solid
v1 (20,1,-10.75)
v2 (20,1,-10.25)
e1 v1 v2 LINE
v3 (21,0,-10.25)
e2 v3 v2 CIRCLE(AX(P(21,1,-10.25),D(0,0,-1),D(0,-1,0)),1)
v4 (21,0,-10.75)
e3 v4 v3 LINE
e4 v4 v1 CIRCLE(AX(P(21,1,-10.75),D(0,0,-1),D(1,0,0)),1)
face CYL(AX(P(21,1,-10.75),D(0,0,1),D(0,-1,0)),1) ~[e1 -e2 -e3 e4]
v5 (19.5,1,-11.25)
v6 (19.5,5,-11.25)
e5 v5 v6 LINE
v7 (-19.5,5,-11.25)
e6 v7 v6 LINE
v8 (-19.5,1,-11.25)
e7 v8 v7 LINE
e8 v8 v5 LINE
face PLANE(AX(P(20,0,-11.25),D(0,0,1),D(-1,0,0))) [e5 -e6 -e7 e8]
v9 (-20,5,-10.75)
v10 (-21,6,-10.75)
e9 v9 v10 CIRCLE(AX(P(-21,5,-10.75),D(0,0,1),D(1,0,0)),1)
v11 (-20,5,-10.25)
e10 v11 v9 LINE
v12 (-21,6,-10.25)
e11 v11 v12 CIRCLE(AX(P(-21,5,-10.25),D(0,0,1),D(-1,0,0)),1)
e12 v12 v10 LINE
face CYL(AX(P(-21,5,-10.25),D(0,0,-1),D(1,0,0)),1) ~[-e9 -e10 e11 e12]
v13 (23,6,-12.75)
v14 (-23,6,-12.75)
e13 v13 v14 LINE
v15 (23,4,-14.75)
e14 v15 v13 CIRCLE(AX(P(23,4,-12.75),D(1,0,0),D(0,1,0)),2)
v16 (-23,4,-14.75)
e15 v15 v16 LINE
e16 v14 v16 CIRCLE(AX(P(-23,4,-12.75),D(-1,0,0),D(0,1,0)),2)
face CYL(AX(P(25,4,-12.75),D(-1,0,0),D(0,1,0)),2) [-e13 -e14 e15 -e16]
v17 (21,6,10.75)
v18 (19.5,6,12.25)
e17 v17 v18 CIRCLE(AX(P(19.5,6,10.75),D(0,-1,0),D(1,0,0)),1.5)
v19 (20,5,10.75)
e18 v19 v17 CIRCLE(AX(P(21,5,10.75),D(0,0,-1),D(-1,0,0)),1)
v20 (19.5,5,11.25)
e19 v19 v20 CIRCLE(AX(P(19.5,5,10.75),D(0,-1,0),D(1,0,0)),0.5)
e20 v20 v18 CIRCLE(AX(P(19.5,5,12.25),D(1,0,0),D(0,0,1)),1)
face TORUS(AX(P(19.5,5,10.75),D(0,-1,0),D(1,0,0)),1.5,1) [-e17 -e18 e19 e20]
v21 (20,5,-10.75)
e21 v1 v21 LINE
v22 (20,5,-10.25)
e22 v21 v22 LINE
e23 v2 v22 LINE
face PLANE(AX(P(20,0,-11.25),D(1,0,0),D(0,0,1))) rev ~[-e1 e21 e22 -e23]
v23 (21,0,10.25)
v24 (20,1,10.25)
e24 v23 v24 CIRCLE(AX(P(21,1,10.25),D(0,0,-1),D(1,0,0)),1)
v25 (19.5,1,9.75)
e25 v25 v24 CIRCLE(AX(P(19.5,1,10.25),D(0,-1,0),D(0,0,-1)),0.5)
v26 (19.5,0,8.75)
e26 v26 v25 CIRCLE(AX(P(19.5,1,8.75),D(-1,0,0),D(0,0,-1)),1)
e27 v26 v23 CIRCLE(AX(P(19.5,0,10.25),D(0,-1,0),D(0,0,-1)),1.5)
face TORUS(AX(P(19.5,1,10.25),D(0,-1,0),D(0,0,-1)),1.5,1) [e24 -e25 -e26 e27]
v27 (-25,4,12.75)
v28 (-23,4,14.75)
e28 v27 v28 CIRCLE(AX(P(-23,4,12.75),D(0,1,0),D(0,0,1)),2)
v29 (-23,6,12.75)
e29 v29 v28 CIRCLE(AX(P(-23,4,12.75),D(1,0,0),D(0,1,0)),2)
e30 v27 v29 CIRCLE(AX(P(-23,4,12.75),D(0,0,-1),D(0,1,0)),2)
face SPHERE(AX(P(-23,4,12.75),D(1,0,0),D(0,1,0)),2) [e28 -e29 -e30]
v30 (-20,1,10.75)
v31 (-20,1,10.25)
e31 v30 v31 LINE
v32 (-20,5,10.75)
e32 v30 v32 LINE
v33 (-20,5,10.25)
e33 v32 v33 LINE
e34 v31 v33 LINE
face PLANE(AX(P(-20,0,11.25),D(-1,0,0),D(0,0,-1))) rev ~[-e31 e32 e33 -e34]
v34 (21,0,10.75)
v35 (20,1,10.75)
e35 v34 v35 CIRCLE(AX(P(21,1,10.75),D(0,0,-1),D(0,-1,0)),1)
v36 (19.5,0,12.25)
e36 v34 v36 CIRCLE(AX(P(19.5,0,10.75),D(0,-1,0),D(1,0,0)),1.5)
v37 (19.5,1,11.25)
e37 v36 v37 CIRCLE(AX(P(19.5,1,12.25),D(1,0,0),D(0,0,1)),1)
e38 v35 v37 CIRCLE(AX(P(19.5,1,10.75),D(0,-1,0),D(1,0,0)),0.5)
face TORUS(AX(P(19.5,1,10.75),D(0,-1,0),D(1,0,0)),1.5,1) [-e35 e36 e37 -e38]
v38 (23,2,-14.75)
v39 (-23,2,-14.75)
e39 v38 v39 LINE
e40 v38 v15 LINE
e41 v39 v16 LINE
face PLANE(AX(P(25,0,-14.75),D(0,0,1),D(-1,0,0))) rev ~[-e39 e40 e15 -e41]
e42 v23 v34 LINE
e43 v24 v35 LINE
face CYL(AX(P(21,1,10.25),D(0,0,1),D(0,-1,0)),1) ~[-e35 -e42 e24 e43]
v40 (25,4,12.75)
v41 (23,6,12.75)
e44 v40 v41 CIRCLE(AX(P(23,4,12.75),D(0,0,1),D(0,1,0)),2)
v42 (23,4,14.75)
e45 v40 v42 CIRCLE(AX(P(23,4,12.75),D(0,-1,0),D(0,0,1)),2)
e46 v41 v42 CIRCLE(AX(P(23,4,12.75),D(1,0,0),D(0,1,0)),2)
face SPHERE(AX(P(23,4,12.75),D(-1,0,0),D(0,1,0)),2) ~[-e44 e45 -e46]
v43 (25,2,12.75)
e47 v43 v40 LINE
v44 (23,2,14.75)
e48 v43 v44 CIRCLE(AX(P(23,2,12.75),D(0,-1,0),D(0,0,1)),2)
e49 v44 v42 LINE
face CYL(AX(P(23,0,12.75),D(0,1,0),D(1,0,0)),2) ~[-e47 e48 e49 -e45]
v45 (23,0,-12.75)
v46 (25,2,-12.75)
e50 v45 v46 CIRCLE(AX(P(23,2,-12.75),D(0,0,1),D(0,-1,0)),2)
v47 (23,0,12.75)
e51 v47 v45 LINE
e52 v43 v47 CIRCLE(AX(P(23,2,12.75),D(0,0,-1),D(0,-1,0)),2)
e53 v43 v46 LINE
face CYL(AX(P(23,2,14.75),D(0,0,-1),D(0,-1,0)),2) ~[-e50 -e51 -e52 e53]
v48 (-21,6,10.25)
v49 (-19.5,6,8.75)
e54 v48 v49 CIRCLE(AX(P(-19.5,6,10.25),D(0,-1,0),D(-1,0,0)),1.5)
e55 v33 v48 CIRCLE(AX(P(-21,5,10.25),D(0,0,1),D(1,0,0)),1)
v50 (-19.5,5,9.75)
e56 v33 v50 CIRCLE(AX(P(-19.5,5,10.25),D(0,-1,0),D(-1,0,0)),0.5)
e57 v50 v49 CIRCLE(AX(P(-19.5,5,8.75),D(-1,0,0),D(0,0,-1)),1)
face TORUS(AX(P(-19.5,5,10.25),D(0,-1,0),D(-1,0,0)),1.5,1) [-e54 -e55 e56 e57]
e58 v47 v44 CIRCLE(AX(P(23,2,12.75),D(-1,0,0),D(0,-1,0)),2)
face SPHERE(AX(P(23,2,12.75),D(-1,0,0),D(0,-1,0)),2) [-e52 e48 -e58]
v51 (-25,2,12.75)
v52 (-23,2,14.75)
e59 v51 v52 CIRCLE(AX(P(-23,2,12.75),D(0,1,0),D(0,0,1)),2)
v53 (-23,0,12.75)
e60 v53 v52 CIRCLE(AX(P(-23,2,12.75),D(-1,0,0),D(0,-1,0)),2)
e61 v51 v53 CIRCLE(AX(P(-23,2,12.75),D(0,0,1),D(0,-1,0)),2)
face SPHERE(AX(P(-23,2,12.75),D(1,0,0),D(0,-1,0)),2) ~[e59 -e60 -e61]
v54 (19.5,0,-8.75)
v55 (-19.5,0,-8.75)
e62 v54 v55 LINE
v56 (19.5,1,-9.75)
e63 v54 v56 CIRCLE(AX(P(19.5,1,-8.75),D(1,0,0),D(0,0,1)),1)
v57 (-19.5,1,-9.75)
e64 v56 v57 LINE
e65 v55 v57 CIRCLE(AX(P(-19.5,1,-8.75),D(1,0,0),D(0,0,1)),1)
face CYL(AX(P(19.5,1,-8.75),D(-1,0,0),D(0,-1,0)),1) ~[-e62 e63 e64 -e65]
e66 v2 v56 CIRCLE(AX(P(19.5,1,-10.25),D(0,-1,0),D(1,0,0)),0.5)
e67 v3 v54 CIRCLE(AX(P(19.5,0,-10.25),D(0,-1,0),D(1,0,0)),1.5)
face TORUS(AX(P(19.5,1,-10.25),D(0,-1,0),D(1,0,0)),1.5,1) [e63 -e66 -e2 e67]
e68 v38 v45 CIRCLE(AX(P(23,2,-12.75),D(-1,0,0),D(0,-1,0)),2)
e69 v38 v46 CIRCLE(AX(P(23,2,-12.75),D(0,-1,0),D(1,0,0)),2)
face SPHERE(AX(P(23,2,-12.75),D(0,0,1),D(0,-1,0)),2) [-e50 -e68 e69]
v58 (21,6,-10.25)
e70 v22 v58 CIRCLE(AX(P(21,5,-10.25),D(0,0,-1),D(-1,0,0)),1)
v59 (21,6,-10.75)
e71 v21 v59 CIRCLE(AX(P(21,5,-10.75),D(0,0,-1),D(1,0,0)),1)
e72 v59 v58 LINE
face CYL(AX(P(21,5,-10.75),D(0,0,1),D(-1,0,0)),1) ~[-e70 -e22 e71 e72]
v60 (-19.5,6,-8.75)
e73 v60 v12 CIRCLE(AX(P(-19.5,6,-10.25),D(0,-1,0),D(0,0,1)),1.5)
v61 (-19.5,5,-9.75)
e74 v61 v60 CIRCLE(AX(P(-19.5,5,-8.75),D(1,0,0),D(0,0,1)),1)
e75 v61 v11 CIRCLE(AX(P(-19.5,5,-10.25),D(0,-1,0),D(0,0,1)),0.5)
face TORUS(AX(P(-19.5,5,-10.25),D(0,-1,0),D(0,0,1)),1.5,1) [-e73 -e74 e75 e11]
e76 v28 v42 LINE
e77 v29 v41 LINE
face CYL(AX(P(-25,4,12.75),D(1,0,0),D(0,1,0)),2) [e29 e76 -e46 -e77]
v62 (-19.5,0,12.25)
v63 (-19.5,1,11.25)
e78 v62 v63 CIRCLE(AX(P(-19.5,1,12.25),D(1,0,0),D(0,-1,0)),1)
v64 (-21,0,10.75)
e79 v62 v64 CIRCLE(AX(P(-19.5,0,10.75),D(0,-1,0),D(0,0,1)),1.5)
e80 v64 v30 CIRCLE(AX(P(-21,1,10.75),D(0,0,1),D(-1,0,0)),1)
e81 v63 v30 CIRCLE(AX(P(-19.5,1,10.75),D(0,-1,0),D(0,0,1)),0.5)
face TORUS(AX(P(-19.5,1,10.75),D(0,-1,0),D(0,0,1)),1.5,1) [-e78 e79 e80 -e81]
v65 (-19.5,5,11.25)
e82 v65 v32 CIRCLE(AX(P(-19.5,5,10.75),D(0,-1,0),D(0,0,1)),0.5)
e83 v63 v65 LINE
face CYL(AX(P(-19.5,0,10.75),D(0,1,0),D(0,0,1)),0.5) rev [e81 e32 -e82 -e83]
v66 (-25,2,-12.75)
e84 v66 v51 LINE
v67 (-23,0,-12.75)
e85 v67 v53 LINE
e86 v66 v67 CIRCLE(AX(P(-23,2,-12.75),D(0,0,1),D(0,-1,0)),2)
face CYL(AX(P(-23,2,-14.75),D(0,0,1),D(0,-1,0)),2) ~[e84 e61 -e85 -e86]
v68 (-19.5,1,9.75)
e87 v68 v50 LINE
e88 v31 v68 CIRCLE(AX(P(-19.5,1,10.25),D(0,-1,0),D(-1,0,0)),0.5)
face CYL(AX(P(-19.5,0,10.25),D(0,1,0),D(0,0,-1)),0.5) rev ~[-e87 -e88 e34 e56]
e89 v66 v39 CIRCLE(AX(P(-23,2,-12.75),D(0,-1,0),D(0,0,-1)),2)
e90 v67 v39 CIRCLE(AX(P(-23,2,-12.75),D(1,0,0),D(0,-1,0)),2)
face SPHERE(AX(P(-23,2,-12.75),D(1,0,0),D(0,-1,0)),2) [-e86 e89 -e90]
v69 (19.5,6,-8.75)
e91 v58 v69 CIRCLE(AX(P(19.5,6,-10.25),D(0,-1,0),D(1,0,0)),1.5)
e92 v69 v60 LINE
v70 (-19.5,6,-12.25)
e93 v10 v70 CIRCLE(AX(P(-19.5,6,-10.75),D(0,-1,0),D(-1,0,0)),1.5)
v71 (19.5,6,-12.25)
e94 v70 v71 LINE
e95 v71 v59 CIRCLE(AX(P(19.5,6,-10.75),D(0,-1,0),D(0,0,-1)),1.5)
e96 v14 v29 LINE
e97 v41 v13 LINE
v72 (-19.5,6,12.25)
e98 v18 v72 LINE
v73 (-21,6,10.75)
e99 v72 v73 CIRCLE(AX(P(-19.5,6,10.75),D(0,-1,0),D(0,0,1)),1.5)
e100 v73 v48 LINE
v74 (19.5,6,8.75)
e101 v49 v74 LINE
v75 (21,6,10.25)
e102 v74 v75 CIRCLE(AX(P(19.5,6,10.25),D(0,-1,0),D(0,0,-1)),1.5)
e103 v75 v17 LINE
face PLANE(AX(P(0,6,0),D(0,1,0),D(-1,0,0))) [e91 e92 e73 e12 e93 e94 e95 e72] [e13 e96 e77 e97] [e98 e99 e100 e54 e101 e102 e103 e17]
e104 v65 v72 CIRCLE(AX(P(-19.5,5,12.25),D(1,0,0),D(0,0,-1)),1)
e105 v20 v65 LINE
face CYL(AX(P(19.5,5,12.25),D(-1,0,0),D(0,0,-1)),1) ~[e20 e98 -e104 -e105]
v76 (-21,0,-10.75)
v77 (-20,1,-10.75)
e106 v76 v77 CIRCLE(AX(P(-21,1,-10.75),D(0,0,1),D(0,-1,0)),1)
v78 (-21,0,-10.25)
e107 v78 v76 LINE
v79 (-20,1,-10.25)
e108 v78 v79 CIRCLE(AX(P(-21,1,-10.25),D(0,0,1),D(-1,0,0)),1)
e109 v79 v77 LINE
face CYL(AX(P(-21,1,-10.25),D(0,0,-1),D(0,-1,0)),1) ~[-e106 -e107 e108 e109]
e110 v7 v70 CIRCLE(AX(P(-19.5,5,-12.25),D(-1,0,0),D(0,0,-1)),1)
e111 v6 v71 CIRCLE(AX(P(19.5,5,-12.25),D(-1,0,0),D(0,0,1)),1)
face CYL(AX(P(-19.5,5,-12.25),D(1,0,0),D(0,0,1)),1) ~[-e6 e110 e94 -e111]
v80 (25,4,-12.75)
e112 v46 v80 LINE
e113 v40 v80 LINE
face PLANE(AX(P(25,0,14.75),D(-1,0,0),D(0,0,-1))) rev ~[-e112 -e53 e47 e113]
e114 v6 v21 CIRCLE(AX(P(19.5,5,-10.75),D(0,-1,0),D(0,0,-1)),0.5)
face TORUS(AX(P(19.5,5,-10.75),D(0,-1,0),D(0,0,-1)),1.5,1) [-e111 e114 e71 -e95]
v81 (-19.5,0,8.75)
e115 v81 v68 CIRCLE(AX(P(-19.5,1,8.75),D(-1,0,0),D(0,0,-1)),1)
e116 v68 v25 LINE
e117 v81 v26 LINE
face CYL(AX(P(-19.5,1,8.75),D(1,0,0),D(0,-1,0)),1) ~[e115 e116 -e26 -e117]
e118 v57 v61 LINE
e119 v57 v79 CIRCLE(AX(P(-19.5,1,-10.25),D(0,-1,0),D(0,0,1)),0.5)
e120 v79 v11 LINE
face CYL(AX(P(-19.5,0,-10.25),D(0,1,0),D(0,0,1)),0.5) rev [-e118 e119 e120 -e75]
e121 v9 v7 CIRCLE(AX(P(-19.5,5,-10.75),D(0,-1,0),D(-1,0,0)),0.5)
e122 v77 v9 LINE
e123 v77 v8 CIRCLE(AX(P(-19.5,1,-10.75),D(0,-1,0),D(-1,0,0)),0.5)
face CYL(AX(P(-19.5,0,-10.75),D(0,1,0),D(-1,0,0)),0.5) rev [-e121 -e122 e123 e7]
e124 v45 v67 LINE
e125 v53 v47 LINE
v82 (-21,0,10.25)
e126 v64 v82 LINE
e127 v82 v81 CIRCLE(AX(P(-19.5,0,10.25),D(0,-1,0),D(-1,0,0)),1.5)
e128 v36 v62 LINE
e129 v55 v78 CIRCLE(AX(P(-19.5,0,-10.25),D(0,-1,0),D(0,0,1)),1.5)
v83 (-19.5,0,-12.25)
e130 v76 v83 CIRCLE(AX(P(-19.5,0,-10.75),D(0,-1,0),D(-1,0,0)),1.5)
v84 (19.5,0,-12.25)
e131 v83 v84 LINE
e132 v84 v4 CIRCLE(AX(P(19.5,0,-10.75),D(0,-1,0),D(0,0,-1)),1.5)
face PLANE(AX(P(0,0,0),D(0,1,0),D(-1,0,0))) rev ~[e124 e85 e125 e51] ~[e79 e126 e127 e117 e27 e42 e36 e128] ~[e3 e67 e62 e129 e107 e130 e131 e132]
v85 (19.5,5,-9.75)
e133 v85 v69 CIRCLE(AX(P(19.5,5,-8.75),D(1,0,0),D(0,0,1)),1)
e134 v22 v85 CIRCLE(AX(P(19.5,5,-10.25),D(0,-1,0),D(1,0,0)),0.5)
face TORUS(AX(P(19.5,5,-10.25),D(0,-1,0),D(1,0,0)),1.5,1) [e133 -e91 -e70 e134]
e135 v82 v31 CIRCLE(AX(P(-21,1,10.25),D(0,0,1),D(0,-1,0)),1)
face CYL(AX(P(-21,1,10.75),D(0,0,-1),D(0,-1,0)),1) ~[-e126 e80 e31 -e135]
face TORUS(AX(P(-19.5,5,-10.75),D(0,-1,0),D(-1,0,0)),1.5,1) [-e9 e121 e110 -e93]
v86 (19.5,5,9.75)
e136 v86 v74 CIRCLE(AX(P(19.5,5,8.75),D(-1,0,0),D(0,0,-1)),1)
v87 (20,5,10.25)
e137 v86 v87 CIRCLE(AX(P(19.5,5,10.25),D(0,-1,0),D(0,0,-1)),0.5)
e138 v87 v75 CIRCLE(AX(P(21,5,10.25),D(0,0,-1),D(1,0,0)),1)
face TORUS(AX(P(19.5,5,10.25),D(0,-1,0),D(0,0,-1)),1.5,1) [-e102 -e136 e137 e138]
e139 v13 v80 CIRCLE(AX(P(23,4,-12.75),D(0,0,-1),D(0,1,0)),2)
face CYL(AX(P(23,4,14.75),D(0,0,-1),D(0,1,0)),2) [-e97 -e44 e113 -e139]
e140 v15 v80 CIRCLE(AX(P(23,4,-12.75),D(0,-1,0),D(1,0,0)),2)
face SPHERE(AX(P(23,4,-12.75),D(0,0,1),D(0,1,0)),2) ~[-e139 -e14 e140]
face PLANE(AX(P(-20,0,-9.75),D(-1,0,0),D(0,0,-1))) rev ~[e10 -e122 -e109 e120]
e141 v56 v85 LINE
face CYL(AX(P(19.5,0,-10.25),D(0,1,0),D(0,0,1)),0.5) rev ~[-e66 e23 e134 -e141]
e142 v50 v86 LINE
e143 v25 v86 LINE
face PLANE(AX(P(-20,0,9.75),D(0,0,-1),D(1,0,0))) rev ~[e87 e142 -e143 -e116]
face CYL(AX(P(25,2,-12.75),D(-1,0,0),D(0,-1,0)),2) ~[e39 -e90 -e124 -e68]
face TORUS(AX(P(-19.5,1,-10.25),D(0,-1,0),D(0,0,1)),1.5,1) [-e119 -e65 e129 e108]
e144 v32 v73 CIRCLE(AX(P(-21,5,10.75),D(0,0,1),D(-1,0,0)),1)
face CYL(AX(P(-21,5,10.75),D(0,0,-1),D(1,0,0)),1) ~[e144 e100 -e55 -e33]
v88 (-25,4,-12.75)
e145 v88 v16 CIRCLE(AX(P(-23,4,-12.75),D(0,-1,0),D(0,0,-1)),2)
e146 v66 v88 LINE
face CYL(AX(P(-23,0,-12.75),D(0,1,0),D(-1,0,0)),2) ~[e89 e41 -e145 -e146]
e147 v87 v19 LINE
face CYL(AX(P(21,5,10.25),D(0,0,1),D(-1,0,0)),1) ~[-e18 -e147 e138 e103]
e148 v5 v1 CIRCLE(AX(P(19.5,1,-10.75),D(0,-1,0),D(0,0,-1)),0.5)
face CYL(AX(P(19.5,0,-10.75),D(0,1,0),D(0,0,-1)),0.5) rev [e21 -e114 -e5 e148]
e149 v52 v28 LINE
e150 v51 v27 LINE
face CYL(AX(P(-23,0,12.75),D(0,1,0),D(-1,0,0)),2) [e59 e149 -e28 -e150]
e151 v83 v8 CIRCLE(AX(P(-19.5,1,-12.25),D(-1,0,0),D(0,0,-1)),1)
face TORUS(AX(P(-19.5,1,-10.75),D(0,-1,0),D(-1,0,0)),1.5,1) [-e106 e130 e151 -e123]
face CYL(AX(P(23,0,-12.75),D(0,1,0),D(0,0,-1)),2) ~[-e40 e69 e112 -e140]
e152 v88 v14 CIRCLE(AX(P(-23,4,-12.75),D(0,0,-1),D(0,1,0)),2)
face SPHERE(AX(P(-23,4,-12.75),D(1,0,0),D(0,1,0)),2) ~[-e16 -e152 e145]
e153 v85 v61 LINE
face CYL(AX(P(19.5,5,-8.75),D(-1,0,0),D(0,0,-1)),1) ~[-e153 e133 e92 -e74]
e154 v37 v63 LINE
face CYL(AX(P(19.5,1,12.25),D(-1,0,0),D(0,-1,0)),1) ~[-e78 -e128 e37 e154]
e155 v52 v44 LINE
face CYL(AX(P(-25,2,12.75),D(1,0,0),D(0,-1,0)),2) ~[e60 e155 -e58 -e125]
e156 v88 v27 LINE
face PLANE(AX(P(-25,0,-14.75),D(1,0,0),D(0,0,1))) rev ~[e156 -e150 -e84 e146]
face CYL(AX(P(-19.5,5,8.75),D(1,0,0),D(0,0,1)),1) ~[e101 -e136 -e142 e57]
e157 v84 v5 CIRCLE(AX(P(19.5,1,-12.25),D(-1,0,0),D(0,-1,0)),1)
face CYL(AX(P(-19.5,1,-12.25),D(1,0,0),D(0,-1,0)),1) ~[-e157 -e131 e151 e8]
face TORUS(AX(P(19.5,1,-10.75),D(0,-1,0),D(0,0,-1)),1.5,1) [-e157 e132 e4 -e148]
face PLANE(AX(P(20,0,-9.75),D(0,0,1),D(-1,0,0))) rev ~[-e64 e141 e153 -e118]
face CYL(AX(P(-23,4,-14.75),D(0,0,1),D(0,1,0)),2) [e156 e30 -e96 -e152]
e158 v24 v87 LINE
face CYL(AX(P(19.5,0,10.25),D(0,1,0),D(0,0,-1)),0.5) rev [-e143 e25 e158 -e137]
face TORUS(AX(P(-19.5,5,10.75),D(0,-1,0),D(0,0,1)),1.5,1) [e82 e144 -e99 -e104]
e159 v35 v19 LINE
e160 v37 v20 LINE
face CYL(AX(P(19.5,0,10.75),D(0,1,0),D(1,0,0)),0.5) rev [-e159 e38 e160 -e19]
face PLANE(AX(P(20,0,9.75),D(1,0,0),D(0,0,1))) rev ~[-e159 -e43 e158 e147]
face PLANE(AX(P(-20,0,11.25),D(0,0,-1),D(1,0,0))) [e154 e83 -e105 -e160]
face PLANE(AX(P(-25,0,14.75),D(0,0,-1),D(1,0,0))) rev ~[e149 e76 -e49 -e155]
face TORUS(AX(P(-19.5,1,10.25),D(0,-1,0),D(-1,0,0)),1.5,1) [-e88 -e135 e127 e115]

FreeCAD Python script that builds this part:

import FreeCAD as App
import Part
import Sketcher

V = App.Vector
Q = App.Units.Quantity


def edges_at(feature, points):
    """Names of the edges that pass closest to the given points."""
    edges = feature.Shape.Edges
    near = lambda p: min(range(len(edges)), key=lambda i: edges[i].distToShape(Part.Vertex(*p))[0])
    return sorted({f"Edge{near(p) + 1}" for p in points})


def add_polygon(sketch, points):
    """Adds a closed chain of lines whose ends are joined by coincident constraints."""
    first, n = sketch.GeometryCount, len(points)
    for a, b in zip(points, points[1:] + points[:1]):
        sketch.addGeometry(Part.LineSegment(App.Vector(*a, 0), App.Vector(*b, 0)), False)
    for i in range(n):
        sketch.addConstraint(Sketcher.Constraint("Coincident", first + i, 2, first + (i + 1) % n, 1))

doc = App.newDocument("Part")
body = doc.addObject("PartDesign::Body", "Body")

sketch1 = body.newObject("Sketcher::SketchObject", "Sketch")
sketch1.AttachmentSupport = (doc.getObject("XZ_Plane"), [""])
sketch1.MapMode = "FlatFace"
add_polygon(sketch1, [(-25, -14.8), (-25, 14.8), (25, 14.8), (25, -14.8)])
add_polygon(sketch1, [(20, -9.8), (-20, -9.8), (-20, -11.2), (20, -11.2)])
add_polygon(sketch1, [(-20, 9.8), (20, 9.8), (20, 11.2), (-20, 11.2)])
sketch1.addConstraint(Sketcher.Constraint("Vertical", 0))
sketch1.addConstraint(Sketcher.Constraint("Horizontal", 1))
sketch1.addConstraint(Sketcher.Constraint("Vertical", 2))
sketch1.addConstraint(Sketcher.Constraint("Horizontal", 3))
sketch1.addConstraint(Sketcher.Constraint("Horizontal", 4))
sketch1.addConstraint(Sketcher.Constraint("Vertical", 5))
sketch1.addConstraint(Sketcher.Constraint("Horizontal", 6))
sketch1.addConstraint(Sketcher.Constraint("Vertical", 7))
sketch1.addConstraint(Sketcher.Constraint("Horizontal", 8))
sketch1.addConstraint(Sketcher.Constraint("Vertical", 9))
sketch1.addConstraint(Sketcher.Constraint("Horizontal", 10))
sketch1.addConstraint(Sketcher.Constraint("Vertical", 11))
sketch1.addConstraint(Sketcher.Constraint("Symmetric", 0, 2, 2, 2, -1, 1))
sketch1.addConstraint(Sketcher.Constraint("Symmetric", 4, 2, 8, 2, -1, 1))
sketch1.addConstraint(Sketcher.Constraint("Symmetric", 6, 2, 10, 2, -1, 1))
sketch1.addConstraint(Sketcher.Constraint("Vertical", 7, 2, 8, 2))
sketch1.addConstraint(Sketcher.Constraint("DistanceX", 4, 2, 4, 1, Q("40 mm")))
sketch1.addConstraint(Sketcher.Constraint("DistanceY", 5, 2, 5, 1, Q("1.5 mm")))
sketch1.addConstraint(Sketcher.Constraint("DistanceY", 3, 2, 5, 2, Q("3.5 mm")))
sketch1.addConstraint(Sketcher.Constraint("DistanceY", 7, 2, 8, 2, Q("19.5 mm")))
sketch1.addConstraint(Sketcher.Constraint("DistanceX", 1, 1, 1, 2, Q("50 mm")))
pad1 = body.newObject("PartDesign::Pad", "Pad")
pad1.Profile = sketch1
pad1.Length = 6
pad1.Reversed = True
doc.recompute()

fillet = body.newObject("PartDesign::Fillet", "Fillet")
fillet.Base = (pad1, edges_at(pad1, [
    (0, 6, 14.75),
    (0, 0, 14.75),
    (25, 0, 0),
    (25, 6, 0),
    (0, 6, -14.75),
    (0, 0, -14.75),
    (-25, 0, 0),
    (-25, 6, 0),
    (-25, 3, 14.75),
    (-25, 3, -14.75),
    (25, 3, -14.75),
    (25, 3, 14.75),
]))
fillet.Radius = 2
doc.recompute()

fillet2 = body.newObject("PartDesign::Fillet", "Fillet001")
fillet2.Base = (fillet, edges_at(fillet, [
    (-20, 3, 9.75),
    (-20, 3, 11.25),
    (-20, 3, -9.75),
    (-20, 3, -11.25),
    (20, 3, -11.25),
    (20, 3, 9.75),
    (20, 3, 11.25),
    (20, 3, -9.75),
]))
fillet2.Radius = 0.5
doc.recompute()

fillet3 = body.newObject("PartDesign::Fillet", "Fillet002")
fillet3.Base = (fillet2, edges_at(fillet2, [
    (-19.854, 6, -9.896),
    (-20, 6, -10.5),
    (-19.854, 6, -11.104),
    (0, 6, -11.25),
    (19.854, 6, -11.104),
    (20, 6, -10.5),
    (19.854, 6, -9.896),
    (0, 6, -9.75),
    (19.854, 6, 9.896),
    (20, 6, 10.5),
    (19.854, 6, 11.104),
    (0, 6, 11.25),
    (-19.854, 6, 11.104),
    (-20, 6, 10.5),
    (-19.854, 6, 9.896),
    (0, 6, 9.75),
    (19.854, 0, 9.896),
    (20, 0, 10.5),
    (19.854, 0, 11.104),
    (0, 0, 11.25),
    (-19.854, 0, 11.104),
    (-20, 0, 10.5),
    (-19.854, 0, 9.896),
    (0, 0, 9.75),
    (-19.854, 0, -9.896),
    (-20, 0, -10.5),
    (-19.854, 0, -11.104),
    (0, 0, -11.25),
    (19.854, 0, -11.104),
    (20, 0, -10.5),
    (19.854, 0, -9.896),
    (0, 0, -9.75),
]))
fillet3.Radius = 1

doc.recompute()
